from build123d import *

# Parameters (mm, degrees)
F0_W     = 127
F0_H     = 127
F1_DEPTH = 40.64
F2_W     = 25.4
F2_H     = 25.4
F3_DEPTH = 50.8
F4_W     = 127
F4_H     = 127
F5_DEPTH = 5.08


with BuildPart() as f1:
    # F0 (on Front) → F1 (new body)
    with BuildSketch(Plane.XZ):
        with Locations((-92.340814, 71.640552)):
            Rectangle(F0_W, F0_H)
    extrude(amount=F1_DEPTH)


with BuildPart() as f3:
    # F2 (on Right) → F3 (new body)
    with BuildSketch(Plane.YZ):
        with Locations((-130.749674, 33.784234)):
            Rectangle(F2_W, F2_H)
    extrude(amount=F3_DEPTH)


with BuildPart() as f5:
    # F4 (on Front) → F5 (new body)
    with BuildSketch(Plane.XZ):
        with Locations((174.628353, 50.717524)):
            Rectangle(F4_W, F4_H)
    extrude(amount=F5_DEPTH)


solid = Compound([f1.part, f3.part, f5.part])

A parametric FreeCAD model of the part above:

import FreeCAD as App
import Part
import Sketcher

V = App.Vector
Q = App.Units.Quantity


def add_polygon(sketch, points):
    """Adds a closed chain of lines whose ends are joined by coincident constraints."""
    first, n = sketch.GeometryCount, len(points)
    for a, b in zip(points, points[1:] + points[:1]):
        sketch.addGeometry(Part.LineSegment(App.Vector(*a, 0), App.Vector(*b, 0)), False)
    for i in range(n):
        sketch.addConstraint(Sketcher.Constraint("Coincident", first + i, 2, first + (i + 1) % n, 1))

doc = App.newDocument("Part")
body = doc.addObject("PartDesign::Body", "Body")

# Sketch on XZ plane
sketch1 = body.newObject("Sketcher::SketchObject", "Sketch")
sketch1.AttachmentSupport = (doc.getObject("XZ_Plane"), [""])
sketch1.MapMode = "FlatFace"
add_polygon(sketch1, [(-156, 135), (-156, 8), (-29, 8), (-29, 135)])  # lines 0-3
sketch1.addConstraint(Sketcher.Constraint("Vertical", 0))
sketch1.addConstraint(Sketcher.Constraint("Horizontal", 1))
sketch1.addConstraint(Sketcher.Constraint("Vertical", 2))
sketch1.addConstraint(Sketcher.Constraint("Horizontal", 3))
sketch1.addConstraint(Sketcher.Constraint("Equal", 3, 0))
sketch1.addConstraint(Sketcher.Constraint("DistanceX", 1, 1, 1, 2, Q("5 in")))
sketch1.addConstraint(Sketcher.Constraint("DistanceX", 0, 2, -1, 1, 155.840814))
sketch1.addConstraint(Sketcher.Constraint("DistanceY", -1, 1, 0, 2, 8.140552))
pad1 = body.newObject("PartDesign::Pad", "Pad")
pad1.Profile = sketch1
pad1.Length = Q("1.6 in")
body2 = doc.addObject("PartDesign::Body", "Body001")

# Sketch on YZ plane
sketch2 = body2.newObject("Sketcher::SketchObject", "Sketch001")
sketch2.AttachmentSupport = (doc.getObject("YZ_Plane001"), [""])
sketch2.MapMode = "FlatFace"
add_polygon(sketch2, [(-143, 46), (-143, 21), (-118, 21), (-118, 46)])  # lines 0-3
sketch2.addConstraint(Sketcher.Constraint("Vertical", 0))
sketch2.addConstraint(Sketcher.Constraint("Horizontal", 1))
sketch2.addConstraint(Sketcher.Constraint("Vertical", 2))
sketch2.addConstraint(Sketcher.Constraint("Horizontal", 3))
sketch2.addConstraint(Sketcher.Constraint("Equal", 3, 0))
sketch2.addConstraint(Sketcher.Constraint("DistanceX", 1, 1, 1, 2, Q("1 in")))
sketch2.addConstraint(Sketcher.Constraint("DistanceX", 0, 2, -1, 1, 143.449674))
sketch2.addConstraint(Sketcher.Constraint("DistanceY", -1, 1, 0, 2, 21.084234))
pad2 = body2.newObject("PartDesign::Pad", "Pad001")
pad2.Profile = sketch2
pad2.Length = Q("2 in")
body3 = doc.addObject("PartDesign::Body", "Body002")

# Sketch on XZ plane
sketch3 = body3.newObject("Sketcher::SketchObject", "Sketch002")
sketch3.AttachmentSupport = (doc.getObject("XZ_Plane002"), [""])
sketch3.MapMode = "FlatFace"
add_polygon(sketch3, [(111, 114), (111, -13), (238, -13), (238, 114)])  # lines 0-3
sketch3.addConstraint(Sketcher.Constraint("Vertical", 0))
sketch3.addConstraint(Sketcher.Constraint("Horizontal", 1))
sketch3.addConstraint(Sketcher.Constraint("Vertical", 2))
sketch3.addConstraint(Sketcher.Constraint("Horizontal", 3))
sketch3.addConstraint(Sketcher.Constraint("Equal", 3, 0))
sketch3.addConstraint(Sketcher.Constraint("DistanceX", 1, 1, 1, 2, Q("5 in")))
sketch3.addConstraint(Sketcher.Constraint("DistanceX", -1, 1, 0, 2, 111.128353))
sketch3.addConstraint(Sketcher.Constraint("DistanceY", 0, 2, -1, 1, 12.782476))
pad3 = body3.newObject("PartDesign::Pad", "Pad002")
pad3.Profile = sketch3
pad3.Length = Q("0.2 in")

doc.recompute()
